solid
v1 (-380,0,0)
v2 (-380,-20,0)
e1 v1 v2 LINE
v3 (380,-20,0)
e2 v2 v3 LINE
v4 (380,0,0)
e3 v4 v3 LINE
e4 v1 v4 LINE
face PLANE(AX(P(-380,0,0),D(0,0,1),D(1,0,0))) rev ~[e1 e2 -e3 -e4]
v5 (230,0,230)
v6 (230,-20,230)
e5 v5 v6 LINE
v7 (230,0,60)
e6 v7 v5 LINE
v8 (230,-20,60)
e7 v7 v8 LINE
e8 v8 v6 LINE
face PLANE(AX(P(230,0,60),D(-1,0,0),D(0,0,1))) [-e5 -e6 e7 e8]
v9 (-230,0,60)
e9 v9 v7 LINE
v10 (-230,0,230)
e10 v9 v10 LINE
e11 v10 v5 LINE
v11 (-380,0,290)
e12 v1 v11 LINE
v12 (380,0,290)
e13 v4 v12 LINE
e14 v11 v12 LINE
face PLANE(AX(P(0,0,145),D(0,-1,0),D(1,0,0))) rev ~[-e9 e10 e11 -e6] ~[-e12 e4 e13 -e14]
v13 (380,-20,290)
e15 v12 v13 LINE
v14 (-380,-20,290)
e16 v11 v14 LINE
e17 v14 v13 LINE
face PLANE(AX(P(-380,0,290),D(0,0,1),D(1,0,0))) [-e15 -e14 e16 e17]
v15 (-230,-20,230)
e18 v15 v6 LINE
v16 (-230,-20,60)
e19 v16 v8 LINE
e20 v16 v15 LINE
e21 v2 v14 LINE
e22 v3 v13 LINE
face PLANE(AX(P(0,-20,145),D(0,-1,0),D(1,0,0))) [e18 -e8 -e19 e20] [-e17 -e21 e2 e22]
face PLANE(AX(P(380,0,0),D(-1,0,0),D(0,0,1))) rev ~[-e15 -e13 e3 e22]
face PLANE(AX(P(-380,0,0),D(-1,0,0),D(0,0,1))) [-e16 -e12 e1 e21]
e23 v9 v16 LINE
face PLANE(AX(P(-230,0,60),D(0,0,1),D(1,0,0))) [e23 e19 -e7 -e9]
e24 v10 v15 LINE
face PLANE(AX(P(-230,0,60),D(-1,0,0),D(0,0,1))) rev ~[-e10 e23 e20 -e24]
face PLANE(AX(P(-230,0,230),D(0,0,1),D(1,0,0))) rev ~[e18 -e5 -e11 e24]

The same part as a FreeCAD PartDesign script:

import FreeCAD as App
import Part
import Sketcher

V = App.Vector


def add_polygon(sketch, points):
    """Adds a closed chain of lines whose ends are joined by coincident constraints."""
    first, n = sketch.GeometryCount, len(points)
    for a, b in zip(points, points[1:] + points[:1]):
        sketch.addGeometry(Part.LineSegment(App.Vector(*a, 0), App.Vector(*b, 0)), False)
    for i in range(n):
        sketch.addConstraint(Sketcher.Constraint("Coincident", first + i, 2, first + (i + 1) % n, 1))

doc = App.newDocument("Part")
body = doc.addObject("PartDesign::Body", "Body")

# Sketch on XZ plane
sketch1 = body.newObject("Sketcher::SketchObject", "Sketch")
sketch1.AttachmentSupport = (doc.getObject("XZ_Plane"), [""])
sketch1.MapMode = "FlatFace"
add_polygon(sketch1, [(-380, 290), (-380, 0), (380, 0), (380, 290)])  # lines 0-3
add_polygon(sketch1, [(230, 60), (-230, 60), (-230, 230), (230, 230)])  # lines 4-7
sketch1.addConstraint(Sketcher.Constraint("Vertical", 0))
sketch1.addConstraint(Sketcher.Constraint("Horizontal", 1))
sketch1.addConstraint(Sketcher.Constraint("Vertical", 2))
sketch1.addConstraint(Sketcher.Constraint("Horizontal", 3))
sketch1.addConstraint(Sketcher.Constraint("Horizontal", 4))
sketch1.addConstraint(Sketcher.Constraint("Vertical", 5))
sketch1.addConstraint(Sketcher.Constraint("Horizontal", 6))
sketch1.addConstraint(Sketcher.Constraint("Vertical", 7))
sketch1.addConstraint(Sketcher.Constraint("Symmetric", 0, 2, 1, 2, -1, 1))
sketch1.addConstraint(Sketcher.Constraint("DistanceX", 1, 1, 1, 2, 760.0))
sketch1.addConstraint(Sketcher.Constraint("DistanceX", 4, 2, 4, 1, 460.0))
sketch1.addConstraint(Sketcher.Constraint("DistanceY", 0, 2, 0, 1, 290.0))
sketch1.addConstraint(Sketcher.Constraint("DistanceY", 5, 1, 5, 2, 170.0))
sketch1.addConstraint(Sketcher.Constraint("DistanceX", 4, 2, -1, 1, 230.0))
sketch1.addConstraint(Sketcher.Constraint("DistanceY", -1, 1, 4, 2, 60.0))
pad1 = body.newObject("PartDesign::Pad", "Pad")
pad1.Profile = sketch1
pad1.Length = 20

doc.recompute()
